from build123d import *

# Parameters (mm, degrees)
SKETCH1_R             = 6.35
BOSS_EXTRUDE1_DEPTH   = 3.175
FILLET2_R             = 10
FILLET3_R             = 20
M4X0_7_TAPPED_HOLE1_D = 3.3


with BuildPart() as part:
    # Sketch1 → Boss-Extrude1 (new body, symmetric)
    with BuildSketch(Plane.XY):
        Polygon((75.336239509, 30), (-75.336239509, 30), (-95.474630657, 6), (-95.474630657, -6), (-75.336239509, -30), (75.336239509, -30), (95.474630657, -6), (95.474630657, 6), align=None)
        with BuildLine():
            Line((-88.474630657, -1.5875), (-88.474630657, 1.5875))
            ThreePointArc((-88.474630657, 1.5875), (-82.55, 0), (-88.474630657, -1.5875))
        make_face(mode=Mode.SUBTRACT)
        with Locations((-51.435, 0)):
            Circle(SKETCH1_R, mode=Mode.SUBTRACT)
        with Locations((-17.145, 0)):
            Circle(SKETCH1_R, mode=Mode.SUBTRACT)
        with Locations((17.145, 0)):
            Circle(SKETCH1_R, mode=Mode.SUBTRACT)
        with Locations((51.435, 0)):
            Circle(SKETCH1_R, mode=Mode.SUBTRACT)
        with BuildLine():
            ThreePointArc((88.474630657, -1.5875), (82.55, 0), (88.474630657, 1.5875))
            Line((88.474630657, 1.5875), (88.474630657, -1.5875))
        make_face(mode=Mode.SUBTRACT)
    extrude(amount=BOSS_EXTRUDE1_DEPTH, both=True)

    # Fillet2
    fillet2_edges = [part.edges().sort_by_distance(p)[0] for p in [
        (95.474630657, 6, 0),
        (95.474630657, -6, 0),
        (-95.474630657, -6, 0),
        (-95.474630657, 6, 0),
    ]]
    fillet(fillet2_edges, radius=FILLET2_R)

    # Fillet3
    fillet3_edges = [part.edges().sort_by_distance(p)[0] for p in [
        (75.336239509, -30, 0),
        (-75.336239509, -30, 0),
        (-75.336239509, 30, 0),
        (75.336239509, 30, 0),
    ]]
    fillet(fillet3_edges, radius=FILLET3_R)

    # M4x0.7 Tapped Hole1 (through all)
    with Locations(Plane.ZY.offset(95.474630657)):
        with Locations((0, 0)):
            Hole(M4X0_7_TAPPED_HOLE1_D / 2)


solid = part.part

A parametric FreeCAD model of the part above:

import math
import FreeCAD as App
import Part
import Sketcher
from FreeCAD import Vector
Q = App.Units.Quantity


def edges_at(feature, points):
    """Names of the edges that pass closest to the given points."""
    edges = feature.Shape.Edges
    near = lambda p: min(range(len(edges)), key=lambda i: edges[i].distToShape(Part.Vertex(*p))[0])
    return sorted({f"Edge{near(p) + 1}" for p in points})

doc = App.newDocument("Part")
body = doc.addObject("PartDesign::Body", "Body")

# Sketch on XY plane
sketch1 = body.newObject("Sketcher::SketchObject", "Sketch")
sketch1.AttachmentSupport = (doc.getObject("XY_Plane"), [""])
sketch1.MapMode = "FlatFace"
sketch1.addGeometry([
    Part.LineSegment(Vector(75.33624, 30, 0), Vector(-75.33624, 30, 0)),  # 0
    Part.LineSegment(Vector(-75.33624, 30, 0), Vector(-95.474631, 6, 0)),  # 1
    Part.LineSegment(Vector(-95.474631, 6, 0), Vector(-95.474631, -6, 0)),  # 2
    Part.LineSegment(Vector(-95.474631, -6, 0), Vector(-75.33624, -30, 0)),  # 3
    Part.LineSegment(Vector(-75.33624, -30, 0), Vector(75.33624, -30, 0)),  # 4
    Part.LineSegment(Vector(75.33624, -30, 0), Vector(95.474631, -6, 0)),  # 5
    Part.LineSegment(Vector(95.474631, -6, 0), Vector(95.474631, 6, 0)),  # 6
    Part.LineSegment(Vector(95.474631, 6, 0), Vector(75.33624, 30, 0)),  # 7
    Part.ArcOfCircle(Part.Circle(Vector(-85.725, 0, 0), Vector(0, 0, 1), 3.175), math.radians(-150), math.radians(150)),  # 8
    Part.LineSegment(Vector(-88.474631, -1.5875, 0), Vector(-88.474631, 1.5875, 0)),  # 9
    Part.Circle(Vector(-51.435, 0, 0), Vector(0, 0, 1), 6.35),  # 10
    Part.Circle(Vector(-17.145, 0, 0), Vector(0, 0, 1), 6.35),  # 11
    Part.Circle(Vector(17.145, 0, 0), Vector(0, 0, 1), 6.35),  # 12
    Part.Circle(Vector(51.435, 0, 0), Vector(0, 0, 1), 6.35),  # 13
    Part.LineSegment(Vector(88.474631, 1.5875, 0), Vector(88.474631, -1.5875, 0)),  # 14
    Part.ArcOfCircle(Part.Circle(Vector(85.725, 0, 0), Vector(0, 0, 1), 3.175), math.radians(30), math.radians(330)),  # 15
], False)
sketch1.addConstraint([
    Sketcher.Constraint("Coincident", 0, 2, 1, 1),
    Sketcher.Constraint("Coincident", 1, 2, 2, 1),
    Sketcher.Constraint("Coincident", 2, 2, 3, 1),
    Sketcher.Constraint("Coincident", 3, 2, 4, 1),
    Sketcher.Constraint("Coincident", 4, 2, 5, 1),
    Sketcher.Constraint("Coincident", 5, 2, 6, 1),
    Sketcher.Constraint("Coincident", 6, 2, 7, 1),
    Sketcher.Constraint("Coincident", 7, 2, 0, 1),
    Sketcher.Constraint("Coincident", 8, 1, 9, 1),
    Sketcher.Constraint("Coincident", 9, 2, 8, 2),
    Sketcher.Constraint("Coincident", 14, 1, 15, 1),
    Sketcher.Constraint("Coincident", 15, 2, 14, 2),
    Sketcher.Constraint("Horizontal", 0),
    Sketcher.Constraint("Vertical", 2),
    Sketcher.Constraint("Horizontal", 4),
    Sketcher.Constraint("Vertical", 6),
    Sketcher.Constraint("Vertical", 9),
    Sketcher.Constraint("Vertical", 14),
    Sketcher.Constraint("Equal", 10, 11),
    Sketcher.Constraint("Equal", 11, 12),
    Sketcher.Constraint("Equal", 12, 13),
    Sketcher.Constraint("Equal", 8, 15),
    Sketcher.Constraint("Symmetric", 11, 3, 12, 3, -1, 1),
    Sketcher.Constraint("Symmetric", 10, 3, 13, 3, -1, 1),
    Sketcher.Constraint("Symmetric", 8, 3, 15, 3, -1, 1),
    Sketcher.Constraint("Symmetric", 0, 2, 4, 2, -1, 1),
    Sketcher.Constraint("Symmetric", 1, 2, 5, 2, -1, 1),
    Sketcher.Constraint("Symmetric", 9, 2, 14, 1, -2),
    Sketcher.Constraint("PointOnObject", 10, 3, -1),
    Sketcher.Constraint("PointOnObject", 11, 3, -1),
    Sketcher.Constraint("Parallel", 3, 7),
    Sketcher.Constraint("Horizontal", 2, 2, 5, 2),
    Sketcher.Constraint("Horizontal", 1, 2, 6, 2),
    Sketcher.Constraint("Vertical", 0, 2, 3, 2),
    Sketcher.Constraint("Diameter", 10, Q("12.7 mm")),
    Sketcher.Constraint("DistanceY", 2, 2, 2, 1, Q("12 mm")),
    Sketcher.Constraint("Angle", 1, Q("-130 deg")),
    Sketcher.Constraint("DistanceY", -1, 1, 0, 2, Q("30 mm")),
    Sketcher.Constraint("Radius", 8, Q("3.175 mm")),
    Sketcher.Constraint("DistanceX", 2, 2, 8, 1, Q("7 mm")),
    Sketcher.Constraint("DistanceY", 9, 1, 9, 2, Q("3.175 mm")),
    Sketcher.Constraint("DistanceX", 8, 3, 10, 3, Q("34.29 mm")),
    Sketcher.Constraint("DistanceX", 10, 3, 11, 3, Q("34.29 mm")),
    Sketcher.Constraint("DistanceX", 11, 3, 12, 3, Q("34.29 mm")),
])
pad1 = body.newObject("PartDesign::Pad", "Pad")
pad1.Profile = sketch1
pad1.Length = 6.35
pad1.Midplane = True
doc.recompute()

fillet = body.newObject("PartDesign::Fillet", "Fillet")
fillet.Base = (pad1, edges_at(pad1, [
    (95.475, 6, 0),
    (95.475, -6, 0),
    (-95.475, -6, 0),
    (-95.475, 6, 0),
]))
fillet.Radius = 10
doc.recompute()

fillet2 = body.newObject("PartDesign::Fillet", "Fillet001")
fillet2.Base = (fillet, edges_at(fillet, [
    (75.336, -30, 0),
    (-75.336, -30, 0),
    (-75.336, 30, 0),
    (75.336, 30, 0),
]))
fillet2.Radius = 20

# Sketch on YZ plane
sketch2 = body.newObject("Sketcher::SketchObject", "Sketch001")
sketch2.AttachmentSupport = (doc.getObject("YZ_Plane"), [""])
sketch2.MapMode = "FlatFace"
sketch2.AttachmentOffset = App.Placement(Vector(0, 0, -95.474631), App.Rotation())
sketch2.addGeometry(Part.Circle(Vector(0, 0, 0), Vector(0, 0, 1), 1.65), False)
sketch2.addConstraint([
    Sketcher.Constraint("Coincident", 0, 3, -1, 1),
    Sketcher.Constraint("Diameter", 0, Q("3.3 mm")),
])
doc.recompute()
hole = body.newObject("PartDesign::Hole", "Hole")
hole.Profile = sketch2
hole.ThreadType = "None"
hole.Diameter = 3.3
hole.DepthType = "ThroughAll"
hole.Reversed = True

doc.recompute()
